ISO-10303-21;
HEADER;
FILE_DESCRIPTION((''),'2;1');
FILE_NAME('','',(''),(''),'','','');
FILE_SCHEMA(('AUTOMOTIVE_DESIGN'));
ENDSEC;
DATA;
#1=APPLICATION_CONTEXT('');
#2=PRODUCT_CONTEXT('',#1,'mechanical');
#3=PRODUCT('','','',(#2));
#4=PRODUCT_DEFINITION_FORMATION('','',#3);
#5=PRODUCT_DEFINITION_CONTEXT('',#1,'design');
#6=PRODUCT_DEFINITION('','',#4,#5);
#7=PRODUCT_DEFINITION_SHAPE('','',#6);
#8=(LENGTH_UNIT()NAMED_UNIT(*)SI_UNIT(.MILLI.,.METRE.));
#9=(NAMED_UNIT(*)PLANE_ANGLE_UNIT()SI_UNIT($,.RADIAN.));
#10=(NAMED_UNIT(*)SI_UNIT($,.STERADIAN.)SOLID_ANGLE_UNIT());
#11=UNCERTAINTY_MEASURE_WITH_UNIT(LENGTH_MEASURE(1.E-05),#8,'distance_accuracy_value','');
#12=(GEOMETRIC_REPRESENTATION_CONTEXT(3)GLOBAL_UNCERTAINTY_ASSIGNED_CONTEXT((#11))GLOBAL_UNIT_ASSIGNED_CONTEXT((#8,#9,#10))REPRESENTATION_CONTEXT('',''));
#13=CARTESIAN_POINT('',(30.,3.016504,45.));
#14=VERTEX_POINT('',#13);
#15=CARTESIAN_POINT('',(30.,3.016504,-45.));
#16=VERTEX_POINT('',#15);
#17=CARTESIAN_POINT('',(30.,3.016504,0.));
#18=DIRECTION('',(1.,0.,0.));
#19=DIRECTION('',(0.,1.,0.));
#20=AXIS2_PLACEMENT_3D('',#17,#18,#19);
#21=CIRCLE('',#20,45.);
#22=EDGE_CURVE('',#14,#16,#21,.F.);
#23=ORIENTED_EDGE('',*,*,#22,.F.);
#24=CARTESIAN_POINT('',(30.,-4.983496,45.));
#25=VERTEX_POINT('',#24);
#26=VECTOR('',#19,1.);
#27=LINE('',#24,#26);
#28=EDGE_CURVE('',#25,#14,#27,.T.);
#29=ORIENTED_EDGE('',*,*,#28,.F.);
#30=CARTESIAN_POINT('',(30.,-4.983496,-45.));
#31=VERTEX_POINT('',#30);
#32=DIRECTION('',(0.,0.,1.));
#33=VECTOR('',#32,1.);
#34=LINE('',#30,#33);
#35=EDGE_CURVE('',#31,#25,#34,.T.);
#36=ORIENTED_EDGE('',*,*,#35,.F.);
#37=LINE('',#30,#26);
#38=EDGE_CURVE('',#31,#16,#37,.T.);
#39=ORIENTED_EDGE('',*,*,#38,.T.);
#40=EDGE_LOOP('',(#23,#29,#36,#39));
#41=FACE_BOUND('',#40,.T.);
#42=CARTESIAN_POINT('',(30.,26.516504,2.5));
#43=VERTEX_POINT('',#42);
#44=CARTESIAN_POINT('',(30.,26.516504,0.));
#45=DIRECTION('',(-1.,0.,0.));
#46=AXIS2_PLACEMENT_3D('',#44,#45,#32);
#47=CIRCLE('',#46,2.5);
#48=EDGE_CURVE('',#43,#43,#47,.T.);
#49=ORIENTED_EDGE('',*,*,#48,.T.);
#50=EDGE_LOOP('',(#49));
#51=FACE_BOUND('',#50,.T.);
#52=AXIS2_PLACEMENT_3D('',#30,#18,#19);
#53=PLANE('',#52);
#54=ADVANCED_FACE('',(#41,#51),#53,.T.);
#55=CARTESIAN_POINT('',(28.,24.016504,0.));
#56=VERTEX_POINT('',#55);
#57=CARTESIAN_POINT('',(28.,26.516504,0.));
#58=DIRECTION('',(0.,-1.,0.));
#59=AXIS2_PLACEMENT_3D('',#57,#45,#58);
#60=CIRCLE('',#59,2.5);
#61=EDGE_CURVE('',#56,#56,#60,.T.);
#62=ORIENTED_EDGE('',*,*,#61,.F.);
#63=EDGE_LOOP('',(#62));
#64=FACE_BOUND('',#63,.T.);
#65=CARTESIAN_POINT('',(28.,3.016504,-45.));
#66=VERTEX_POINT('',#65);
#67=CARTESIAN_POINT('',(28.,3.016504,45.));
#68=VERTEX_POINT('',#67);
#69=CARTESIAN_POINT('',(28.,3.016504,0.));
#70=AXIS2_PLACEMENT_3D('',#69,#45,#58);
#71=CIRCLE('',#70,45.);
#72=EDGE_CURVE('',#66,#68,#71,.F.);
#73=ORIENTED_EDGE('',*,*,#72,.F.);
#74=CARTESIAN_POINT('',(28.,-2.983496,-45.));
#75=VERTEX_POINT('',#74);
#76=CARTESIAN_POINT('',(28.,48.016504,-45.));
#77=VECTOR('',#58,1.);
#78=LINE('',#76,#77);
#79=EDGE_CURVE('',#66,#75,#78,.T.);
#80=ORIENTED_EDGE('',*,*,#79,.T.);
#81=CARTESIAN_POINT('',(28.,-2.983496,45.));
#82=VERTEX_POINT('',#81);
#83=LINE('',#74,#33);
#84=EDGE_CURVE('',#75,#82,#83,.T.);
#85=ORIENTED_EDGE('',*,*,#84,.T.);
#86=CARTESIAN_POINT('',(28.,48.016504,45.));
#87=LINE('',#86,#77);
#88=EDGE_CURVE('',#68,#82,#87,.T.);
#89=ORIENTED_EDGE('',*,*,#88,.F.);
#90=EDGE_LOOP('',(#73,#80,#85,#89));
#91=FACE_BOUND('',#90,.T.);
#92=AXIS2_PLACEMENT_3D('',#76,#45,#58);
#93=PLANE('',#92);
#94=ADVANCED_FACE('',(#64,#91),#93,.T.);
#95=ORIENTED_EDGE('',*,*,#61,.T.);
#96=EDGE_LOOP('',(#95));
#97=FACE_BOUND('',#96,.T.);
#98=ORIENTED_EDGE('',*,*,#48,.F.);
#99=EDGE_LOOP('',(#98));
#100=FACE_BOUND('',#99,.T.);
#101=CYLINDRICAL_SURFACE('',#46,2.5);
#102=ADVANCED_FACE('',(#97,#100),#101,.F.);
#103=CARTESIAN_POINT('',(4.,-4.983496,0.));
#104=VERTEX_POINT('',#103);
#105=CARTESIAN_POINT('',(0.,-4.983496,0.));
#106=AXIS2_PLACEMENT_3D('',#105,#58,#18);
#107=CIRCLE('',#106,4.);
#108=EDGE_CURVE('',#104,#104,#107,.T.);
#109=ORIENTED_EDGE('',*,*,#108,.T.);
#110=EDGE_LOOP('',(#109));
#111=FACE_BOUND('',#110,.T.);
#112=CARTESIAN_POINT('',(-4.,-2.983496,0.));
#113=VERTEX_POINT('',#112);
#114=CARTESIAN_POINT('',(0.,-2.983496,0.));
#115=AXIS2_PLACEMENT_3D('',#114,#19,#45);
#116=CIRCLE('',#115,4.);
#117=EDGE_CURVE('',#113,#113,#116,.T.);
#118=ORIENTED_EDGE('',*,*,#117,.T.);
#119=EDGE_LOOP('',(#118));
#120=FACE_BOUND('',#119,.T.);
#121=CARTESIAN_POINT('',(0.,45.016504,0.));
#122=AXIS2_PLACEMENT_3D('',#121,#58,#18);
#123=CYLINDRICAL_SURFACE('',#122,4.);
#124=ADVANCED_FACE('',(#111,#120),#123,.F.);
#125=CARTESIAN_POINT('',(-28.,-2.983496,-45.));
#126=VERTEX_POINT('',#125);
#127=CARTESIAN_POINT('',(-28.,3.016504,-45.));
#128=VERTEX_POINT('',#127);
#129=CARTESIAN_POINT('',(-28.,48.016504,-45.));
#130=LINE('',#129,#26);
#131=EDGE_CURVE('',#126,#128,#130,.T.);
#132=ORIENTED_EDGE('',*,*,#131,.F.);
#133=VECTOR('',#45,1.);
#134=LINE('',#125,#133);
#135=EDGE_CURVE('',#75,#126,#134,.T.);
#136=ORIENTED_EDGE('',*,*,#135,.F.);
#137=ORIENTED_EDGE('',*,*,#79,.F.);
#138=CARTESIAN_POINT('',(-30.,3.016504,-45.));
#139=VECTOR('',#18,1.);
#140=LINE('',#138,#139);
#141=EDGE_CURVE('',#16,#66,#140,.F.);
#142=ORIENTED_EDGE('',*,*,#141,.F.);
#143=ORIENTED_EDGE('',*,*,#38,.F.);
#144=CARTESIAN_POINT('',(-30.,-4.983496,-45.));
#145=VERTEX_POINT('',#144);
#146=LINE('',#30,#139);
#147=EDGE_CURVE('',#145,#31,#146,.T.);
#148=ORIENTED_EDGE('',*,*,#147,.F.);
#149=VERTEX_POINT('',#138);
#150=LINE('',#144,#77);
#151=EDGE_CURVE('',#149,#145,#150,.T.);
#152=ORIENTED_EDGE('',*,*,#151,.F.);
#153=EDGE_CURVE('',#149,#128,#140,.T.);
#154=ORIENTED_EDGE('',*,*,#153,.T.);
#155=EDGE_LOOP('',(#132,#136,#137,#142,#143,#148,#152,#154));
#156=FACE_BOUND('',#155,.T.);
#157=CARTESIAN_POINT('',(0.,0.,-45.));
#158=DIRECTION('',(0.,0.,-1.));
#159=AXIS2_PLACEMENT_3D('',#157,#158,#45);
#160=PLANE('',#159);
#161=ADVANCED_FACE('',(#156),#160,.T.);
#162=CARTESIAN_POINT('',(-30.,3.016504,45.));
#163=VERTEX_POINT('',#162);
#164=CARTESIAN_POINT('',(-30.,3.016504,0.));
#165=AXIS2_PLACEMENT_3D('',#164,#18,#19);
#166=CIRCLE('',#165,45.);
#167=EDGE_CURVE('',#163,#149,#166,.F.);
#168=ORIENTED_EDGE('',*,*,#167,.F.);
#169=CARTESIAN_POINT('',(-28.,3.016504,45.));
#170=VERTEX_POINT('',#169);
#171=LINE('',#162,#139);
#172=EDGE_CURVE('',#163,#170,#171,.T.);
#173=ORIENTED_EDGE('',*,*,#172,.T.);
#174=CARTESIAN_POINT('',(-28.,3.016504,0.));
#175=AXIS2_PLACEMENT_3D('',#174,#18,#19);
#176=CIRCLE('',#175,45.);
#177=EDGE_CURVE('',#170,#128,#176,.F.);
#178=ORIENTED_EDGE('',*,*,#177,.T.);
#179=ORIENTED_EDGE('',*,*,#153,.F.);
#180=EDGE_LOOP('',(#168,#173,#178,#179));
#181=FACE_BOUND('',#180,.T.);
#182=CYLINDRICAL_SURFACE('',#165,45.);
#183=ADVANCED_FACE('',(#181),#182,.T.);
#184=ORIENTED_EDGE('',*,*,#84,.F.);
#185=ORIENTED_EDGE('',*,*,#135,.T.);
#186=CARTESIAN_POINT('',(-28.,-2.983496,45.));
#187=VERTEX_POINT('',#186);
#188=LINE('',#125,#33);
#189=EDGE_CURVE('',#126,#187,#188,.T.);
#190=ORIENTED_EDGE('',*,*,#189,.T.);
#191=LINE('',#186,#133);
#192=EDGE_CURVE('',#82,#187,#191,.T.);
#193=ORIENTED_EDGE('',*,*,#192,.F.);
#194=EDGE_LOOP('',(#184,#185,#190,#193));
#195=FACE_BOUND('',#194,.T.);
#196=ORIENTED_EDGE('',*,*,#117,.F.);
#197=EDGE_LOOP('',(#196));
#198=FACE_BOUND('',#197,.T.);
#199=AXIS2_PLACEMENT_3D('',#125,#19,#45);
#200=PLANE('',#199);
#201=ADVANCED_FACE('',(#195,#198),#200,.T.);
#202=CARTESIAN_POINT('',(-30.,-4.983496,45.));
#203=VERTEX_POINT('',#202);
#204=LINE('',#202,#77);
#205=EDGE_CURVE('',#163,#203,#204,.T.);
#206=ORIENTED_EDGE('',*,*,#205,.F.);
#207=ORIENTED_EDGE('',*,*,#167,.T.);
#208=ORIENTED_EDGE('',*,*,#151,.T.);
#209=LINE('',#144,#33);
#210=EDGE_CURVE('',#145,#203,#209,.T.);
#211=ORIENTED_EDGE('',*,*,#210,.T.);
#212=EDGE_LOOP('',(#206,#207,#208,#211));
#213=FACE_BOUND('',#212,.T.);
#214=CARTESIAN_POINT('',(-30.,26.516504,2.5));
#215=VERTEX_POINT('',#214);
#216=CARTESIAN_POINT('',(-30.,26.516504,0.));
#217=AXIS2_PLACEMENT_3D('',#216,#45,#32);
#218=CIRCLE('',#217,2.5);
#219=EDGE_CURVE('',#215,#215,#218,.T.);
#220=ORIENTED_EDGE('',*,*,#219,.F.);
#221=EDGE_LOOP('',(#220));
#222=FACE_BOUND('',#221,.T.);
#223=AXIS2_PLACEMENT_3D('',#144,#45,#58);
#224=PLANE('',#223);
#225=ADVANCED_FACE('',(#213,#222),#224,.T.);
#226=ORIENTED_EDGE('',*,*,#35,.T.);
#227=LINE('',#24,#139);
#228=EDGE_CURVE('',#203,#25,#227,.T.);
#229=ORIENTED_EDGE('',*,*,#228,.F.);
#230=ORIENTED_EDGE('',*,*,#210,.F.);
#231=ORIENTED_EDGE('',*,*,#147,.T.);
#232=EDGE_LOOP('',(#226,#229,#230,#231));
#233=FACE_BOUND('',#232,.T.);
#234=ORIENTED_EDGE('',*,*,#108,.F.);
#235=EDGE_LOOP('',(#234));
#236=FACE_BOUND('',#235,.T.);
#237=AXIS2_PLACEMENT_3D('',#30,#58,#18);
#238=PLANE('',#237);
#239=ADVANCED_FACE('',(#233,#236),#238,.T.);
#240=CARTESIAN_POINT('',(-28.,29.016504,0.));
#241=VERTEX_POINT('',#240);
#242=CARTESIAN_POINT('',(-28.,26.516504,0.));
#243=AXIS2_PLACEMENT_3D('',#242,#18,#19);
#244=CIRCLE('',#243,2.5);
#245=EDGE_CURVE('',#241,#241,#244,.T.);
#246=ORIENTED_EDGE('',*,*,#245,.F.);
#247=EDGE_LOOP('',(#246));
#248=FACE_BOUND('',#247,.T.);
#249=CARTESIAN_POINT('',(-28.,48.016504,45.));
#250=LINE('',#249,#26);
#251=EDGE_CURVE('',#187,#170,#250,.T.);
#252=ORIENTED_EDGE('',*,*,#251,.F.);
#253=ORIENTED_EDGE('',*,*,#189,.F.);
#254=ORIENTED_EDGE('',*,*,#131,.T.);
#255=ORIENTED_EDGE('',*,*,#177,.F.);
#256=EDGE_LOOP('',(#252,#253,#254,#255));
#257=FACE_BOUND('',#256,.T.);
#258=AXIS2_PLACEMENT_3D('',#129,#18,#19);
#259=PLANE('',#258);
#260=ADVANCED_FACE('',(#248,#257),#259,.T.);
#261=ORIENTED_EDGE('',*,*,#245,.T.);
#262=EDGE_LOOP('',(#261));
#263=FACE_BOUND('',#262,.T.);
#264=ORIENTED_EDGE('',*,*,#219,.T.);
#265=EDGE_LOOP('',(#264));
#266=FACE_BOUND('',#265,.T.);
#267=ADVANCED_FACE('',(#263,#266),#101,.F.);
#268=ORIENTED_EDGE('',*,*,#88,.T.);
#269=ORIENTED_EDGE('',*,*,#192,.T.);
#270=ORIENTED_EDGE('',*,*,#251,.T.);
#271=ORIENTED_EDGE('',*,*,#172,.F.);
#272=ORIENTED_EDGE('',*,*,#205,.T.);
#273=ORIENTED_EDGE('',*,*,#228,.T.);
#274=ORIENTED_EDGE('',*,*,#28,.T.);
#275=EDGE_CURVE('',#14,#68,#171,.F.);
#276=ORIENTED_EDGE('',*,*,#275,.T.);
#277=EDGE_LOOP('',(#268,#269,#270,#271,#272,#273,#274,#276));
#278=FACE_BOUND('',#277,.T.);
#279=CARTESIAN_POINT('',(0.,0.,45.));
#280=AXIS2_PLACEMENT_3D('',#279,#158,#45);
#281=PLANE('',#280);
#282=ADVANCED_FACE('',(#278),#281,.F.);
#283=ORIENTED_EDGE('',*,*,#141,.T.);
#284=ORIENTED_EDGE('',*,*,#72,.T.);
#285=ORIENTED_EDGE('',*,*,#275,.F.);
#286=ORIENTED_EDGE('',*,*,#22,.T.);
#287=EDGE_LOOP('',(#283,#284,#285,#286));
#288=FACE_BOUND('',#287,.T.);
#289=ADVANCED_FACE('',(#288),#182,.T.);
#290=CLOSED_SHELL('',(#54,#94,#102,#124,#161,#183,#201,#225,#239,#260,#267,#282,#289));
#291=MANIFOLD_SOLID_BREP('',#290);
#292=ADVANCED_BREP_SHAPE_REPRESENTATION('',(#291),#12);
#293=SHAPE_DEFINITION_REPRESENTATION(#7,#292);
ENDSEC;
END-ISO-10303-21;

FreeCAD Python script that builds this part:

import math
import FreeCAD as App
import Part
import Sketcher

V = App.Vector
Q = App.Units.Quantity

doc = App.newDocument("Part")
params = doc.addObject("Spreadsheet::Sheet", "Params")
for row, (alias, value) in enumerate([
    ("sketch1_width", "60 mm"),
    ("sketch1_width2", "2 mm"),
    ("sketch1_height", "53 mm"),
    ("sketch1_height2", "51 mm"),
    ("pad1_length", "45 mm"),
    ("pad1_length2", "45 mm"),
    ("sketch2_radius", "45 mm"),
    ("sketch3_diameter", "5 mm"),
    ("sketch4_diameter", "8 mm"),
    ("pocket3_length", "50 mm"),
], start=1):
    params.set(f"A{row}", alias)
    params.set(f"B{row}", "=" + value)
    params.setAlias(f"B{row}", alias)

body = doc.addObject("PartDesign::Body", "Body")

# Sketch on XY plane
sketch1 = doc.addObject("Sketcher::SketchObject", "Sketch")
body.addObject(sketch1)
sketch1.AttachmentSupport = (doc.XY_Plane, [""])
sketch1.MapMode = "FlatFace"
sketch1.addGeometry(Part.LineSegment(V(-30, -5, 0), V(30, -5, 0)), False)
sketch1.addGeometry(Part.LineSegment(V(30, -5, 0), V(30, 48, 0)), False)
sketch1.addGeometry(Part.LineSegment(V(30, 48, 0), V(28, 48, 0)), False)
sketch1.addGeometry(Part.LineSegment(V(28, 48, 0), V(28, -3, 0)), False)
sketch1.addGeometry(Part.LineSegment(V(28, -3, 0), V(-28, -3, 0)), False)
sketch1.addGeometry(Part.LineSegment(V(-28, -3, 0), V(-28, 48, 0)), False)
sketch1.addGeometry(Part.LineSegment(V(-28, 48, 0), V(-30, 48, 0)), False)
sketch1.addGeometry(Part.LineSegment(V(-30, 48, 0), V(-30, -5, 0)), False)
sketch1.addConstraint(Sketcher.Constraint("Coincident", 0, 2, 1, 1))
sketch1.addConstraint(Sketcher.Constraint("Coincident", 1, 2, 2, 1))
sketch1.addConstraint(Sketcher.Constraint("Coincident", 2, 2, 3, 1))
sketch1.addConstraint(Sketcher.Constraint("Coincident", 3, 2, 4, 1))
sketch1.addConstraint(Sketcher.Constraint("Coincident", 4, 2, 5, 1))
sketch1.addConstraint(Sketcher.Constraint("Coincident", 5, 2, 6, 1))
sketch1.addConstraint(Sketcher.Constraint("Coincident", 6, 2, 7, 1))
sketch1.addConstraint(Sketcher.Constraint("Coincident", 7, 2, 0, 1))
sketch1.addConstraint(Sketcher.Constraint("Horizontal", 0))
sketch1.addConstraint(Sketcher.Constraint("Vertical", 1))
sketch1.addConstraint(Sketcher.Constraint("Horizontal", 2))
sketch1.addConstraint(Sketcher.Constraint("Vertical", 3))
sketch1.addConstraint(Sketcher.Constraint("Horizontal", 4))
sketch1.addConstraint(Sketcher.Constraint("Vertical", 5))
sketch1.addConstraint(Sketcher.Constraint("Horizontal", 6))
sketch1.addConstraint(Sketcher.Constraint("Vertical", 7))
sketch1.addConstraint(Sketcher.Constraint("Symmetric", 2, 2, 5, 2, -2))
sketch1.addConstraint(Sketcher.Constraint("Equal", 2, 6))
sketch1.addConstraint(Sketcher.Constraint("DistanceX", 0, 1, 0, 2, Q("60 mm")))
sketch1.addConstraint(Sketcher.Constraint("DistanceX", 2, 2, 2, 1, Q("2 mm")))
sketch1.addConstraint(Sketcher.Constraint("DistanceY", 1, 1, 1, 2, Q("53 mm")))
sketch1.addConstraint(Sketcher.Constraint("DistanceY", 3, 2, 3, 1, Q("51 mm")))
sketch1.addConstraint(Sketcher.Constraint("DistanceY", 0, 2, -1, 1, Q("4.983496 mm")))
sketch1.setExpression("Constraints[18]", "Params.sketch1_width")
sketch1.setExpression("Constraints[19]", "Params.sketch1_width2")
sketch1.setExpression("Constraints[20]", "Params.sketch1_height")
sketch1.setExpression("Constraints[21]", "Params.sketch1_height2")
pad1 = doc.addObject("PartDesign::Pad", "Pad")
body.addObject(pad1)
pad1.Profile = sketch1
pad1.Type = "TwoLengths"
pad1.setExpression("Length", "Params.pad1_length")
pad1.setExpression("Length2", "Params.pad1_length2")

# Sketch on YZ plane
sketch2 = doc.addObject("Sketcher::SketchObject", "Sketch001")
body.addObject(sketch2)
sketch2.AttachmentSupport = (doc.YZ_Plane, [""])
sketch2.MapMode = "FlatFace"
sketch2.AttachmentOffset = App.Placement(V(0, 0, 30), App.Rotation())
sketch2.addGeometry(Part.LineSegment(V(48, 45, 0), V(3, 45, 0)), False)
sketch2.addGeometry(Part.ArcOfCircle(Part.Circle(V(3, 0, 0), V(0, 0, 1), 45), math.radians(0), math.radians(90)), False)
sketch2.addGeometry(Part.LineSegment(V(48, 0, 0), V(48, 45, 0)), False)
sketch2.addGeometry(Part.LineSegment(V(48, -45, 0), V(48, 0, 0)), False)
sketch2.addGeometry(Part.ArcOfCircle(Part.Circle(V(3, 0, 0), V(0, 0, 1), 45), math.radians(-90), math.radians(0)), False)
sketch2.addGeometry(Part.LineSegment(V(3, -45, 0), V(48, -45, 0)), False)
sketch2.addConstraint(Sketcher.Constraint("Tangent", 0, 2, 1, 2))
sketch2.addConstraint(Sketcher.Constraint("Tangent", 1, 1, 2, 1))
sketch2.addConstraint(Sketcher.Constraint("Coincident", 2, 2, 0, 1))
sketch2.addConstraint(Sketcher.Constraint("Tangent", 3, 2, 4, 2))
sketch2.addConstraint(Sketcher.Constraint("Tangent", 4, 1, 5, 1))
sketch2.addConstraint(Sketcher.Constraint("Coincident", 5, 2, 3, 1))
sketch2.addConstraint(Sketcher.Constraint("Horizontal", 0))
sketch2.addConstraint(Sketcher.Constraint("Vertical", 2))
sketch2.addConstraint(Sketcher.Constraint("Vertical", 3))
sketch2.addConstraint(Sketcher.Constraint("Horizontal", 5))
sketch2.addConstraint(Sketcher.Constraint("Coincident", 4, 3, 1, 3))
sketch2.addConstraint(Sketcher.Constraint("Equal", 1, 4))
sketch2.addConstraint(Sketcher.Constraint("PointOnObject", 1, 3, -1))
sketch2.addConstraint(Sketcher.Constraint("Radius", 1, Q("45 mm")))
sketch2.addConstraint(Sketcher.Constraint("DistanceX", -1, 1, 1, 3, Q("3.016504 mm")))
sketch2.setExpression("Constraints[13]", "Params.sketch2_radius")
pocket1 = doc.addObject("PartDesign::Pocket", "Pocket")
body.addObject(pocket1)
pocket1.Profile = sketch2
pocket1.Type = "ThroughAll"

# Sketch on YZ plane
sketch3 = doc.addObject("Sketcher::SketchObject", "Sketch002")
body.addObject(sketch3)
sketch3.AttachmentSupport = (doc.YZ_Plane, [""])
sketch3.MapMode = "FlatFace"
sketch3.AttachmentOffset = App.Placement(V(0, 0, -30), App.Rotation())
sketch3.addGeometry(Part.Circle(V(26.5, 0, 0), V(0, 0, 1), 2.5), False)
sketch3.addConstraint(Sketcher.Constraint("PointOnObject", 0, 3, -1))
sketch3.addConstraint(Sketcher.Constraint("Diameter", 0, Q("5 mm")))
sketch3.addConstraint(Sketcher.Constraint("DistanceX", -1, 1, 0, 3, Q("26.516504 mm")))
sketch3.setExpression("Constraints[1]", "Params.sketch3_diameter")
pocket2 = doc.addObject("PartDesign::Pocket", "Pocket001")
body.addObject(pocket2)
pocket2.Profile = sketch3
pocket2.Type = "ThroughAll"
pocket2.Reversed = True

# Sketch on XZ plane
sketch4 = doc.addObject("Sketcher::SketchObject", "Sketch003")
body.addObject(sketch4)
sketch4.AttachmentSupport = (doc.XZ_Plane, [""])
sketch4.MapMode = "FlatFace"
sketch4.AttachmentOffset = App.Placement(V(0, 0, 4.983496), App.Rotation())
sketch4.addGeometry(Part.Circle(V(0, 0, 0), V(0, 0, 1), 4), False)
sketch4.addConstraint(Sketcher.Constraint("Coincident", 0, 3, -1, 1))
sketch4.addConstraint(Sketcher.Constraint("Diameter", 0, Q("8 mm")))
sketch4.setExpression("Constraints[1]", "Params.sketch4_diameter")
pocket3 = doc.addObject("PartDesign::Pocket", "Pocket002")
body.addObject(pocket3)
pocket3.Profile = sketch4
pocket3.setExpression("Length", "Params.pocket3_length")

doc.recompute()
